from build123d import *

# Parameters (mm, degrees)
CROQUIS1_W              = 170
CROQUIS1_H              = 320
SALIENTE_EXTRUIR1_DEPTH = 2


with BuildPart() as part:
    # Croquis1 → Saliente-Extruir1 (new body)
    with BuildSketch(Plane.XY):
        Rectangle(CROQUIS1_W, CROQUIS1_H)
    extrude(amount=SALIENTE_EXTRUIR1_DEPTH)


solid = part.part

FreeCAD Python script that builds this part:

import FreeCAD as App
import Part
import Sketcher

V = App.Vector
Q = App.Units.Quantity


def add_polygon(sketch, points):
    """Adds a closed chain of lines whose ends are joined by coincident constraints."""
    first, n = sketch.GeometryCount, len(points)
    for a, b in zip(points, points[1:] + points[:1]):
        sketch.addGeometry(Part.LineSegment(App.Vector(*a, 0), App.Vector(*b, 0)), False)
    for i in range(n):
        sketch.addConstraint(Sketcher.Constraint("Coincident", first + i, 2, first + (i + 1) % n, 1))

doc = App.newDocument("Part")
body = doc.addObject("PartDesign::Body", "Body")

# Sketch on XY plane
sketch1 = body.newObject("Sketcher::SketchObject", "Sketch")
sketch1.AttachmentSupport = (doc.getObject("XY_Plane"), [""])
sketch1.MapMode = "FlatFace"
add_polygon(sketch1, [(-85, 160), (-85, -160), (85, -160), (85, 160)])  # lines 0-3
sketch1.addConstraint([
    Sketcher.Constraint("Vertical", 0),
    Sketcher.Constraint("Horizontal", 1),
    Sketcher.Constraint("Vertical", 2),
    Sketcher.Constraint("Horizontal", 3),
    Sketcher.Constraint("Symmetric", 0, 2, 2, 2, -1, 1),
    Sketcher.Constraint("DistanceX", 1, 1, 1, 2, Q("170 mm")),
    Sketcher.Constraint("DistanceY", 0, 2, 0, 1, Q("320 mm")),
])
pad1 = body.newObject("PartDesign::Pad", "Pad")
pad1.Profile = sketch1
pad1.Length = 2

doc.recompute()
